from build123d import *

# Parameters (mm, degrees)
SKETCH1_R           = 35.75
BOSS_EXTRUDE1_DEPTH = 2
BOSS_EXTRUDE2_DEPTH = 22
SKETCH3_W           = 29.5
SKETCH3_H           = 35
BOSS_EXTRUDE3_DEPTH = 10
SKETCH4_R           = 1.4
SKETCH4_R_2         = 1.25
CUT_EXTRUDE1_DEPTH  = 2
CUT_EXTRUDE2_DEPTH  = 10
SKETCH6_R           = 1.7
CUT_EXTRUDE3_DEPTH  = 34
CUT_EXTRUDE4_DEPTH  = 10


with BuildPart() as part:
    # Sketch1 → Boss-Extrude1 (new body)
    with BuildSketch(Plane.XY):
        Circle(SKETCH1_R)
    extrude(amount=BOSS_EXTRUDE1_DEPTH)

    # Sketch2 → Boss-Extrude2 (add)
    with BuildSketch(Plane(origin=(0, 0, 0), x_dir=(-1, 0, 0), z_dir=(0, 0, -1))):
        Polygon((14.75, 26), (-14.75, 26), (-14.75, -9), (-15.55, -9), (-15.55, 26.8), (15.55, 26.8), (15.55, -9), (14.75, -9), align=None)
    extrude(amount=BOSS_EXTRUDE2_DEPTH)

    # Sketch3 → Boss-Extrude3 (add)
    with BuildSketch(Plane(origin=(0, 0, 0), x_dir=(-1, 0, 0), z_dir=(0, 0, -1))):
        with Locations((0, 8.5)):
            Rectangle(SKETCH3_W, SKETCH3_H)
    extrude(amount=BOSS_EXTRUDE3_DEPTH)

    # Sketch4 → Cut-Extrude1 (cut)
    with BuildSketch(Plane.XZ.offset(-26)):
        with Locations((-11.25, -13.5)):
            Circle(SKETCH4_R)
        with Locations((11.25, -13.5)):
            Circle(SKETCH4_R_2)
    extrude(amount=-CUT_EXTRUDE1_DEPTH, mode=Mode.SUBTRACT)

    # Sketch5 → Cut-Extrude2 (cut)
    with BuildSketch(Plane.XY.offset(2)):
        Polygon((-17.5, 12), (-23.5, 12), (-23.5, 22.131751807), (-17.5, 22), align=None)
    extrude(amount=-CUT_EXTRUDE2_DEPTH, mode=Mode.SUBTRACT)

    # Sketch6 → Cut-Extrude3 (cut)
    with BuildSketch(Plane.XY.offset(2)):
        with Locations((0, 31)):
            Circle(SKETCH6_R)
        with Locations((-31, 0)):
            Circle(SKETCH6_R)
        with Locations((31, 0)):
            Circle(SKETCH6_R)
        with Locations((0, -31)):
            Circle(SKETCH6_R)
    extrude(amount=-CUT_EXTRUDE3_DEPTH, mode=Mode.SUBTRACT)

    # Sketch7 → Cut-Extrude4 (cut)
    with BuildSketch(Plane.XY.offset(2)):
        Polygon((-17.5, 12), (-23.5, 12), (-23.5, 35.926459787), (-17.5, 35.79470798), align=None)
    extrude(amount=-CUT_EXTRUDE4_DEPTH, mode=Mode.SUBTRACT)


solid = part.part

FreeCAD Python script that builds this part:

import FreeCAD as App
import Part
import Sketcher
Q = App.Units.Quantity

doc = App.newDocument("Part")
params = doc.addObject("Spreadsheet::Sheet", "Params")
for row, (alias, value) in enumerate([
    ("sketch1_diameter", "71.5 mm"),
    ("pad1_length", "2 mm"),
    ("sketch2_height", "35 mm"),
    ("sketch2_width", "29.5 mm"),
    ("sketch2_width2", "0.8 mm"),
    ("sketch2_height2", "35.8 mm"),
    ("pad2_length", "22 mm"),
    ("sketch3_height", "35 mm"),
    ("sketch3_width", "29.5 mm"),
    ("pad3_length", "10 mm"),
    ("sketch4_diameter", "2.8 mm"),
    ("sketch4_diameter2", "2.5 mm"),
    ("pocket1_length", "2 mm"),
    ("sketch5_width", "6 mm"),
    ("sketch5_height", "10 mm"),
    ("pocket2_length", "10 mm"),
    ("sketch6_diameter", "3.4 mm"),
    ("pocket3_length", "34 mm"),
    ("sketch7_width", "6 mm"),
    ("pocket4_length", "10 mm"),
], start=1):
    params.set(f"A{row}", alias)
    params.set(f"B{row}", "=" + value)
    params.setAlias(f"B{row}", alias)

body = doc.addObject("PartDesign::Body", "Body")

sketch1 = body.newObject("Sketcher::SketchObject", "Sketch")
sketch1.AttachmentSupport = (doc.getObject("XY_Plane"), [""])
sketch1.MapMode = "FlatFace"
sketch1.addGeometry(Part.Circle(App.Vector(0, 0, 0), App.Vector(0, 0, 1), 36), False)
sketch1.addConstraint([
    Sketcher.Constraint("Coincident", 0, 3, -1, 1),
    Sketcher.Constraint("Diameter", 0, Q("71.5 mm")),
])
sketch1.setExpression("Constraints[1]", "Params.sketch1_diameter")
pad1 = body.newObject("PartDesign::Pad", "Pad")
pad1.Profile = sketch1
pad1.setExpression("Length", "Params.pad1_length")

sketch2 = body.newObject("Sketcher::SketchObject", "Sketch001")
sketch2.AttachmentSupport = (doc.getObject("XY_Plane"), [""])
sketch2.MapMode = "FlatFace"
sketch2.addGeometry([
    Part.LineSegment(App.Vector(14.8, 26, 0), App.Vector(-14.8, 26, 0)),
    Part.LineSegment(App.Vector(-14.8, 26, 0), App.Vector(-14.8, -9, 0)),
    Part.LineSegment(App.Vector(-14.8, -9, 0), App.Vector(-15.6, -9, 0)),
    Part.LineSegment(App.Vector(-15.6, -9, 0), App.Vector(-15.6, 26.8, 0)),
    Part.LineSegment(App.Vector(-15.6, 26.8, 0), App.Vector(15.6, 26.8, 0)),
    Part.LineSegment(App.Vector(15.6, 26.8, 0), App.Vector(15.6, -9, 0)),
    Part.LineSegment(App.Vector(15.6, -9, 0), App.Vector(14.8, -9, 0)),
    Part.LineSegment(App.Vector(14.8, -9, 0), App.Vector(14.8, 26, 0)),
], False)
sketch2.addConstraint([
    Sketcher.Constraint("Coincident", 0, 2, 1, 1),
    Sketcher.Constraint("Coincident", 1, 2, 2, 1),
    Sketcher.Constraint("Coincident", 2, 2, 3, 1),
    Sketcher.Constraint("Coincident", 3, 2, 4, 1),
    Sketcher.Constraint("Coincident", 4, 2, 5, 1),
    Sketcher.Constraint("Coincident", 5, 2, 6, 1),
    Sketcher.Constraint("Coincident", 6, 2, 7, 1),
    Sketcher.Constraint("Coincident", 7, 2, 0, 1),
    Sketcher.Constraint("Horizontal", 0),
    Sketcher.Constraint("Vertical", 1),
    Sketcher.Constraint("Horizontal", 2),
    Sketcher.Constraint("Vertical", 3),
    Sketcher.Constraint("Horizontal", 4),
    Sketcher.Constraint("Vertical", 5),
    Sketcher.Constraint("Horizontal", 6),
    Sketcher.Constraint("Vertical", 7),
    Sketcher.Constraint("Symmetric", 2, 2, 5, 2, -2),
    Sketcher.Constraint("Equal", 2, 6),
    Sketcher.Constraint("DistanceY", 1, 2, 1, 1, Q("35 mm")),
    Sketcher.Constraint("DistanceX", 0, 2, 0, 1, Q("29.5 mm")),
    Sketcher.Constraint("DistanceX", 2, 2, 2, 1, Q("0.8 mm")),
    Sketcher.Constraint("DistanceY", 3, 1, 3, 2, Q("35.8 mm")),
    Sketcher.Constraint("DistanceY", -1, 1, 0, 2, Q("26 mm")),
])
sketch2.setExpression("Constraints[18]", "Params.sketch2_height")
sketch2.setExpression("Constraints[19]", "Params.sketch2_width")
sketch2.setExpression("Constraints[20]", "Params.sketch2_width2")
sketch2.setExpression("Constraints[21]", "Params.sketch2_height2")
pad2 = body.newObject("PartDesign::Pad", "Pad001")
pad2.Profile = sketch2
pad2.setExpression("Length", "Params.pad2_length")
pad2.Reversed = True

sketch3 = body.newObject("Sketcher::SketchObject", "Sketch002")
sketch3.AttachmentSupport = (doc.getObject("XY_Plane"), [""])
sketch3.MapMode = "FlatFace"
sketch3.addGeometry([
    Part.LineSegment(App.Vector(15, 26, 0), App.Vector(15, -9, 0)),
    Part.LineSegment(App.Vector(15, -9, 0), App.Vector(-15, -9, 0)),
    Part.LineSegment(App.Vector(-15, -9, 0), App.Vector(-15, 26, 0)),
    Part.LineSegment(App.Vector(-15, 26, 0), App.Vector(15, 26, 0)),
], False)
sketch3.addConstraint([
    Sketcher.Constraint("Coincident", 0, 2, 1, 1),
    Sketcher.Constraint("Coincident", 1, 2, 2, 1),
    Sketcher.Constraint("Coincident", 2, 2, 3, 1),
    Sketcher.Constraint("Coincident", 3, 2, 0, 1),
    Sketcher.Constraint("Vertical", 0),
    Sketcher.Constraint("Horizontal", 1),
    Sketcher.Constraint("Vertical", 2),
    Sketcher.Constraint("Horizontal", 3),
    Sketcher.Constraint("DistanceY", 0, 2, 0, 1, Q("35 mm")),
    Sketcher.Constraint("DistanceX", 1, 2, 1, 1, Q("29.5 mm")),
    Sketcher.Constraint("DistanceY", 0, 2, -1, 1, Q("9 mm")),
    Sketcher.Constraint("DistanceX", -1, 1, 0, 2, Q("14.75 mm")),
])
sketch3.setExpression("Constraints[8]", "Params.sketch3_height")
sketch3.setExpression("Constraints[9]", "Params.sketch3_width")
pad3 = body.newObject("PartDesign::Pad", "Pad002")
pad3.Profile = sketch3
pad3.setExpression("Length", "Params.pad3_length")
pad3.Reversed = True

sketch4 = body.newObject("Sketcher::SketchObject", "Sketch003")
sketch4.AttachmentSupport = (doc.getObject("XZ_Plane"), [""])
sketch4.MapMode = "FlatFace"
sketch4.AttachmentOffset = App.Placement(App.Vector(0, 0, -26), App.Rotation())
sketch4.addGeometry([
    Part.Circle(App.Vector(-11.2, -13.5, 0), App.Vector(0, 0, 1), 1.4),
    Part.Circle(App.Vector(11.2, -13.5, 0), App.Vector(0, 0, 1), 1.2),
], False)
sketch4.addConstraint([
    Sketcher.Constraint("Symmetric", 0, 3, 1, 3, -2),
    Sketcher.Constraint("Diameter", 0, Q("2.8 mm")),
    Sketcher.Constraint("Diameter", 1, Q("2.5 mm")),
    Sketcher.Constraint("DistanceY", 0, 3, -1, 1, Q("13.5 mm")),
    Sketcher.Constraint("DistanceX", 0, 3, 1, 3, Q("22.5 mm")),
])
sketch4.setExpression("Constraints[1]", "Params.sketch4_diameter")
sketch4.setExpression("Constraints[2]", "Params.sketch4_diameter2")
pocket1 = body.newObject("PartDesign::Pocket", "Pocket")
pocket1.Profile = sketch4
pocket1.setExpression("Length", "Params.pocket1_length")

sketch5 = body.newObject("Sketcher::SketchObject", "Sketch004")
sketch5.AttachmentSupport = (doc.getObject("XY_Plane"), [""])
sketch5.MapMode = "FlatFace"
sketch5.AttachmentOffset = App.Placement(App.Vector(0, 0, 2), App.Rotation())
sketch5.addGeometry([
    Part.LineSegment(App.Vector(-24, 12, 0), App.Vector(-18, 12, 0)),
    Part.LineSegment(App.Vector(-18, 12, 0), App.Vector(-18, 22, 0)),
    Part.LineSegment(App.Vector(-18, 22, 0), App.Vector(-24, 22, 0)),
    Part.LineSegment(App.Vector(-24, 22, 0), App.Vector(-24, 12, 0)),
], False)
sketch5.addConstraint([
    Sketcher.Constraint("Coincident", 0, 2, 1, 1),
    Sketcher.Constraint("Coincident", 1, 2, 2, 1),
    Sketcher.Constraint("Coincident", 2, 2, 3, 1),
    Sketcher.Constraint("Coincident", 3, 2, 0, 1),
    Sketcher.Constraint("Horizontal", 0),
    Sketcher.Constraint("Vertical", 1),
    Sketcher.Constraint("Vertical", 3),
    Sketcher.Constraint("DistanceX", 0, 1, 0, 2, Q("6 mm")),
    Sketcher.Constraint("DistanceY", 1, 1, 1, 2, Q("10 mm")),
    Sketcher.Constraint("DistanceY", -1, 1, 0, 2, Q("12 mm")),
    Sketcher.Constraint("DistanceX", 0, 2, -1, 1, Q("17.5 mm")),
    Sketcher.Constraint("DistanceY", 3, 2, 3, 1, Q("10.131752 mm")),
])
sketch5.setExpression("Constraints[7]", "Params.sketch5_width")
sketch5.setExpression("Constraints[8]", "Params.sketch5_height")
pocket2 = body.newObject("PartDesign::Pocket", "Pocket001")
pocket2.Profile = sketch5
pocket2.setExpression("Length", "Params.pocket2_length")

sketch6 = body.newObject("Sketcher::SketchObject", "Sketch005")
sketch6.AttachmentSupport = (doc.getObject("XY_Plane"), [""])
sketch6.MapMode = "FlatFace"
sketch6.AttachmentOffset = App.Placement(App.Vector(0, 0, 2), App.Rotation())
sketch6.addGeometry([
    Part.Circle(App.Vector(0, 31, 0), App.Vector(0, 0, 1), 1.7),
    Part.Circle(App.Vector(-31, 0, 0), App.Vector(0, 0, 1), 1.7),
    Part.Circle(App.Vector(31, 0, 0), App.Vector(0, 0, 1), 1.7),
    Part.Circle(App.Vector(0, -31, 0), App.Vector(0, 0, 1), 1.7),
], False)
sketch6.addConstraint([
    Sketcher.Constraint("Equal", 0, 1),
    Sketcher.Constraint("Equal", 1, 2),
    Sketcher.Constraint("Equal", 2, 3),
    Sketcher.Constraint("Symmetric", 1, 3, 2, 3, -1, 1),
    Sketcher.Constraint("Symmetric", 0, 3, 3, 3, -1, 1),
    Sketcher.Constraint("PointOnObject", 0, 3, -2),
    Sketcher.Constraint("PointOnObject", 1, 3, -1),
    Sketcher.Constraint("Diameter", 0, Q("3.4 mm")),
    Sketcher.Constraint("DistanceY", -1, 1, 0, 3, Q("31 mm")),
    Sketcher.Constraint("DistanceX", 1, 3, -1, 1, Q("31 mm")),
])
sketch6.setExpression("Constraints[7]", "Params.sketch6_diameter")
pocket3 = body.newObject("PartDesign::Pocket", "Pocket002")
pocket3.Profile = sketch6
pocket3.setExpression("Length", "Params.pocket3_length")

sketch7 = body.newObject("Sketcher::SketchObject", "Sketch006")
sketch7.AttachmentSupport = (doc.getObject("XY_Plane"), [""])
sketch7.MapMode = "FlatFace"
sketch7.AttachmentOffset = App.Placement(App.Vector(0, 0, 2), App.Rotation())
sketch7.addGeometry([
    Part.LineSegment(App.Vector(-24, 12, 0), App.Vector(-18, 12, 0)),
    Part.LineSegment(App.Vector(-18, 12, 0), App.Vector(-18, 36, 0)),
    Part.LineSegment(App.Vector(-18, 36, 0), App.Vector(-24, 36, 0)),
    Part.LineSegment(App.Vector(-24, 36, 0), App.Vector(-24, 12, 0)),
], False)
sketch7.addConstraint([
    Sketcher.Constraint("Coincident", 0, 2, 1, 1),
    Sketcher.Constraint("Coincident", 1, 2, 2, 1),
    Sketcher.Constraint("Coincident", 2, 2, 3, 1),
    Sketcher.Constraint("Coincident", 3, 2, 0, 1),
    Sketcher.Constraint("Horizontal", 0),
    Sketcher.Constraint("Vertical", 1),
    Sketcher.Constraint("Vertical", 3),
    Sketcher.Constraint("DistanceX", 0, 1, 0, 2, Q("6 mm")),
    Sketcher.Constraint("DistanceY", -1, 1, 0, 2, Q("12 mm")),
    Sketcher.Constraint("DistanceX", 0, 2, -1, 1, Q("17.5 mm")),
    Sketcher.Constraint("DistanceY", 3, 2, 3, 1, Q("23.92646 mm")),
    Sketcher.Constraint("DistanceY", 1, 1, 1, 2, Q("23.794708 mm")),
])
sketch7.setExpression("Constraints[7]", "Params.sketch7_width")
pocket4 = body.newObject("PartDesign::Pocket", "Pocket003")
pocket4.Profile = sketch7
pocket4.setExpression("Length", "Params.pocket4_length")

doc.recompute()
